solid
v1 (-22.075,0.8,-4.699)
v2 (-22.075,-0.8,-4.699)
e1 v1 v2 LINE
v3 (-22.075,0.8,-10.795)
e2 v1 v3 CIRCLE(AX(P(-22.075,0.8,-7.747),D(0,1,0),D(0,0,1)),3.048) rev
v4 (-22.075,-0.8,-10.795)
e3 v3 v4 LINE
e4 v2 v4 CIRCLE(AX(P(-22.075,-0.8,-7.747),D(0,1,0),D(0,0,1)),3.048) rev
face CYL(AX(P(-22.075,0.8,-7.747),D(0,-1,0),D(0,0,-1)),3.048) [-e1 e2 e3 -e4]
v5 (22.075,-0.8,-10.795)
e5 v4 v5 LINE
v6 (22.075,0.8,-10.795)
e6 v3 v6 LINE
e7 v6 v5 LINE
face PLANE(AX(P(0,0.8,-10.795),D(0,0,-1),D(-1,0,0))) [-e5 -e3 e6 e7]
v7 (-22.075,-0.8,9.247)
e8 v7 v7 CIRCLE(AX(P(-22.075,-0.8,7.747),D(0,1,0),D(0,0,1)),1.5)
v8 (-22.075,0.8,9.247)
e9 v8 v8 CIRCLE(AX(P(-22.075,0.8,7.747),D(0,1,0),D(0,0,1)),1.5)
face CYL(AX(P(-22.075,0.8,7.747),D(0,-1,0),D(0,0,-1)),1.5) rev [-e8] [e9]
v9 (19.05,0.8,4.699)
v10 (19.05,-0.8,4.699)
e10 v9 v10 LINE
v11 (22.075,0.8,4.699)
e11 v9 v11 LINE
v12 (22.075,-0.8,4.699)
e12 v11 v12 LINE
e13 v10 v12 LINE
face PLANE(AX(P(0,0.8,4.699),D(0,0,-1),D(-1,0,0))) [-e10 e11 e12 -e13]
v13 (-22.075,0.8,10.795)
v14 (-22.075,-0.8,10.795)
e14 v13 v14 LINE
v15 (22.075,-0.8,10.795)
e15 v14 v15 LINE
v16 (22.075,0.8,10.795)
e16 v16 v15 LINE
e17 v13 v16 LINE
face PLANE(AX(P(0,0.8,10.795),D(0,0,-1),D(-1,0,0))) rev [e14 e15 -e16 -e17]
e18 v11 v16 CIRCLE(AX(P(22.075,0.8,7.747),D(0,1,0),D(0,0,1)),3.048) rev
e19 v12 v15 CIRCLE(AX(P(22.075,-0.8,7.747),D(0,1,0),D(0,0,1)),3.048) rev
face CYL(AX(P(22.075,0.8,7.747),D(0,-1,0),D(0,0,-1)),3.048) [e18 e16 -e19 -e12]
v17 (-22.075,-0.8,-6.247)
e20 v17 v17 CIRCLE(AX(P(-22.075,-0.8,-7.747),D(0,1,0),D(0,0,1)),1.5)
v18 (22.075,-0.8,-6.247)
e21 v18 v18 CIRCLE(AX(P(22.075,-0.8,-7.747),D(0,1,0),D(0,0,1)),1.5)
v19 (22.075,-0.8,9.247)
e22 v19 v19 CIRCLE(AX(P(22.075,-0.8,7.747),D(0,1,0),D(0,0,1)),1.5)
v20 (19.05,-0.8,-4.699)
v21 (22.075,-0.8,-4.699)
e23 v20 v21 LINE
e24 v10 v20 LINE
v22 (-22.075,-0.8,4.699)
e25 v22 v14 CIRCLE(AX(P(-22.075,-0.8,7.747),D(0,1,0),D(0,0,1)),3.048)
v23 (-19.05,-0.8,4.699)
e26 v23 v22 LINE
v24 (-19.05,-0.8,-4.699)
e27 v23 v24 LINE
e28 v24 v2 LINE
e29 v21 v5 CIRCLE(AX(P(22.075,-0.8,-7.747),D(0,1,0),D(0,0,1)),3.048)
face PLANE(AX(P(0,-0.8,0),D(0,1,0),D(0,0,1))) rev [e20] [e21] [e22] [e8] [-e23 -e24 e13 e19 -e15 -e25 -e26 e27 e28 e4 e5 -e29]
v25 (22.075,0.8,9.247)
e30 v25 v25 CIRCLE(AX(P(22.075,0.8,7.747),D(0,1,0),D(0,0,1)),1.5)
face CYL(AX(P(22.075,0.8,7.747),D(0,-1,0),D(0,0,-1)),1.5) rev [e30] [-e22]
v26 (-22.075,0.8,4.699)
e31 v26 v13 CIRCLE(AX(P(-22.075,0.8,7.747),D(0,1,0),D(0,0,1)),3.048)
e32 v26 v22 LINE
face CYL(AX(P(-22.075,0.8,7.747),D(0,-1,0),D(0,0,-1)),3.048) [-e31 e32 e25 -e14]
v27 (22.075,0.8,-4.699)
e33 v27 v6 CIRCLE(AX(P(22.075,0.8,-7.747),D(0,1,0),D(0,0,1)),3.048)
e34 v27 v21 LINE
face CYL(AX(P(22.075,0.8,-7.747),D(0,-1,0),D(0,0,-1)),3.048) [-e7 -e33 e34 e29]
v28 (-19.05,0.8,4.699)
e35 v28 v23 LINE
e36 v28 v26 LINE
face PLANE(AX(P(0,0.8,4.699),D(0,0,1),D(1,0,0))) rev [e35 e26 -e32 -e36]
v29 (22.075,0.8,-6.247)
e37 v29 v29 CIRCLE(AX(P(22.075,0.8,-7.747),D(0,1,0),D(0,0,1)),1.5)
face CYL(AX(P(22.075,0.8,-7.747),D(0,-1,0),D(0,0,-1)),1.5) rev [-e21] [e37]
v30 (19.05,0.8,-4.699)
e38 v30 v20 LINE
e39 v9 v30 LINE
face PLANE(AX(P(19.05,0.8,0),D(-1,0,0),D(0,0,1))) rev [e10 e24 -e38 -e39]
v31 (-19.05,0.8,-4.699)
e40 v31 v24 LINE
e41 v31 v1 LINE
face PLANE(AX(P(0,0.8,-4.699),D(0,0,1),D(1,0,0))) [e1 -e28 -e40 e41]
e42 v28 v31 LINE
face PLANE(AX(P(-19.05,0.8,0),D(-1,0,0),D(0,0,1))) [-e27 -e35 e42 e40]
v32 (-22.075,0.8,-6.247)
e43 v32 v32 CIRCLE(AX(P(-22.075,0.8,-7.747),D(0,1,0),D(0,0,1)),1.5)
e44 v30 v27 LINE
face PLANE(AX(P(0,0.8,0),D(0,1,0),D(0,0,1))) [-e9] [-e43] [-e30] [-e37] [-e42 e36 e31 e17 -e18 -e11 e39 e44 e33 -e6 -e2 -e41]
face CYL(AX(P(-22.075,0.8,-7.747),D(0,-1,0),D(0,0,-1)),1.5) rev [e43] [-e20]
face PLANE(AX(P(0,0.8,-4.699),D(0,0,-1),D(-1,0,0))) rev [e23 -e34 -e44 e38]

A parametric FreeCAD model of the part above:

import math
import FreeCAD as App
import Part
import Sketcher
from FreeCAD import Vector
Q = App.Units.Quantity

doc = App.newDocument("Part")
params = doc.addObject("Spreadsheet::Sheet", "Params")
for row, (alias, value) in enumerate([
    ("sketch1_diameter", "3 mm"),
    ("sketch1_width", "44.15 mm"),
    ("pad1_length", "1.6 mm"),
], start=1):
    params.set(f"A{row}", alias)
    params.set(f"B{row}", "=" + value)
    params.setAlias(f"B{row}", alias)

body = doc.addObject("PartDesign::Body", "Body")

# Sketch on XZ plane
sketch1 = body.newObject("Sketcher::SketchObject", "Sketch")
sketch1.AttachmentSupport = (doc.getObject("XZ_Plane"), [""])
sketch1.MapMode = "FlatFace"
sketch1.addGeometry([
    Part.ArcOfCircle(Part.Circle(Vector(22.1, 7.7, 0), Vector(0, 0, 1), 3), math.radians(-90), math.radians(90)),  # 0
    Part.LineSegment(Vector(22.1, 4.7, 0), Vector(19.1, 4.7, 0)),  # 1
    Part.LineSegment(Vector(19.1, 4.7, 0), Vector(19.1, -4.7, 0)),  # 2
    Part.LineSegment(Vector(19.1, -4.7, 0), Vector(22.1, -4.7, 0)),  # 3
    Part.ArcOfCircle(Part.Circle(Vector(22.1, -7.7, 0), Vector(0, 0, 1), 3), math.radians(-90), math.radians(90)),  # 4
    Part.LineSegment(Vector(22.1, -10.8, 0), Vector(-22.1, -10.8, 0)),  # 5
    Part.ArcOfCircle(Part.Circle(Vector(-22.1, -7.7, 0), Vector(0, 0, 1), 3), math.radians(90), math.radians(270)),  # 6
    Part.LineSegment(Vector(-22.1, -4.7, 0), Vector(-19.1, -4.7, 0)),  # 7
    Part.LineSegment(Vector(-19.1, -4.7, 0), Vector(-19.1, 4.7, 0)),  # 8
    Part.LineSegment(Vector(-19.1, 4.7, 0), Vector(-22.1, 4.7, 0)),  # 9
    Part.ArcOfCircle(Part.Circle(Vector(-22.1, 7.7, 0), Vector(0, 0, 1), 3), math.radians(90), math.radians(270)),  # 10
    Part.LineSegment(Vector(-22.1, 10.8, 0), Vector(22.1, 10.8, 0)),  # 11
    Part.Circle(Vector(-22.1, 7.7, 0), Vector(0, 0, 1), 1.5),  # 12
    Part.Circle(Vector(22.1, 7.7, 0), Vector(0, 0, 1), 1.5),  # 13
    Part.Circle(Vector(22.1, -7.7, 0), Vector(0, 0, 1), 1.5),  # 14
    Part.Circle(Vector(-22.1, -7.7, 0), Vector(0, 0, 1), 1.5),  # 15
], False)
sketch1.addConstraint([
    Sketcher.Constraint("Tangent", 0, 1, 1, 1),
    Sketcher.Constraint("Coincident", 1, 2, 2, 1),
    Sketcher.Constraint("Coincident", 2, 2, 3, 1),
    Sketcher.Constraint("Tangent", 3, 2, 4, 2),
    Sketcher.Constraint("Tangent", 4, 1, 5, 1),
    Sketcher.Constraint("Tangent", 5, 2, 6, 2),
    Sketcher.Constraint("Tangent", 6, 1, 7, 1),
    Sketcher.Constraint("Coincident", 7, 2, 8, 1),
    Sketcher.Constraint("Coincident", 8, 2, 9, 1),
    Sketcher.Constraint("Tangent", 9, 2, 10, 2),
    Sketcher.Constraint("Tangent", 10, 1, 11, 1),
    Sketcher.Constraint("Tangent", 11, 2, 0, 2),
    Sketcher.Constraint("Horizontal", 1),
    Sketcher.Constraint("Vertical", 2),
    Sketcher.Constraint("Horizontal", 3),
    Sketcher.Constraint("Horizontal", 5),
    Sketcher.Constraint("Horizontal", 7),
    Sketcher.Constraint("Vertical", 8),
    Sketcher.Constraint("Horizontal", 9),
    Sketcher.Constraint("Horizontal", 11),
    Sketcher.Constraint("Coincident", 12, 3, 10, 3),
    Sketcher.Constraint("Coincident", 13, 3, 0, 3),
    Sketcher.Constraint("Coincident", 14, 3, 4, 3),
    Sketcher.Constraint("Coincident", 15, 3, 6, 3),
    Sketcher.Constraint("Equal", 0, 4),
    Sketcher.Constraint("Equal", 4, 6),
    Sketcher.Constraint("Equal", 6, 10),
    Sketcher.Constraint("Equal", 12, 13),
    Sketcher.Constraint("Equal", 13, 14),
    Sketcher.Constraint("Equal", 14, 15),
    Sketcher.Constraint("Symmetric", 0, 3, 6, 3, -1, 1),
    Sketcher.Constraint("Vertical", 0, 3, 4, 3),
    Sketcher.Constraint("Vertical", 6, 3, 10, 3),
    Sketcher.Constraint("Equal", 3, 7),
    Sketcher.Constraint("Diameter", 12, Q("3 mm")),
    Sketcher.Constraint("Radius", 0, Q("3.048 mm")),
    Sketcher.Constraint("DistanceX", 5, 2, 5, 1, Q("44.15 mm")),
    Sketcher.Constraint("DistanceX", 1, 2, 1, 1, Q("3.025 mm")),
    Sketcher.Constraint("DistanceY", 2, 2, 2, 1, Q("9.398 mm")),
])
sketch1.setExpression("Constraints[34]", "Params.sketch1_diameter")
sketch1.setExpression("Constraints[36]", "Params.sketch1_width")
pad1 = body.newObject("PartDesign::Pad", "Pad")
pad1.Profile = sketch1
pad1.setExpression("Length", "Params.pad1_length")
pad1.Midplane = True

doc.recompute()
